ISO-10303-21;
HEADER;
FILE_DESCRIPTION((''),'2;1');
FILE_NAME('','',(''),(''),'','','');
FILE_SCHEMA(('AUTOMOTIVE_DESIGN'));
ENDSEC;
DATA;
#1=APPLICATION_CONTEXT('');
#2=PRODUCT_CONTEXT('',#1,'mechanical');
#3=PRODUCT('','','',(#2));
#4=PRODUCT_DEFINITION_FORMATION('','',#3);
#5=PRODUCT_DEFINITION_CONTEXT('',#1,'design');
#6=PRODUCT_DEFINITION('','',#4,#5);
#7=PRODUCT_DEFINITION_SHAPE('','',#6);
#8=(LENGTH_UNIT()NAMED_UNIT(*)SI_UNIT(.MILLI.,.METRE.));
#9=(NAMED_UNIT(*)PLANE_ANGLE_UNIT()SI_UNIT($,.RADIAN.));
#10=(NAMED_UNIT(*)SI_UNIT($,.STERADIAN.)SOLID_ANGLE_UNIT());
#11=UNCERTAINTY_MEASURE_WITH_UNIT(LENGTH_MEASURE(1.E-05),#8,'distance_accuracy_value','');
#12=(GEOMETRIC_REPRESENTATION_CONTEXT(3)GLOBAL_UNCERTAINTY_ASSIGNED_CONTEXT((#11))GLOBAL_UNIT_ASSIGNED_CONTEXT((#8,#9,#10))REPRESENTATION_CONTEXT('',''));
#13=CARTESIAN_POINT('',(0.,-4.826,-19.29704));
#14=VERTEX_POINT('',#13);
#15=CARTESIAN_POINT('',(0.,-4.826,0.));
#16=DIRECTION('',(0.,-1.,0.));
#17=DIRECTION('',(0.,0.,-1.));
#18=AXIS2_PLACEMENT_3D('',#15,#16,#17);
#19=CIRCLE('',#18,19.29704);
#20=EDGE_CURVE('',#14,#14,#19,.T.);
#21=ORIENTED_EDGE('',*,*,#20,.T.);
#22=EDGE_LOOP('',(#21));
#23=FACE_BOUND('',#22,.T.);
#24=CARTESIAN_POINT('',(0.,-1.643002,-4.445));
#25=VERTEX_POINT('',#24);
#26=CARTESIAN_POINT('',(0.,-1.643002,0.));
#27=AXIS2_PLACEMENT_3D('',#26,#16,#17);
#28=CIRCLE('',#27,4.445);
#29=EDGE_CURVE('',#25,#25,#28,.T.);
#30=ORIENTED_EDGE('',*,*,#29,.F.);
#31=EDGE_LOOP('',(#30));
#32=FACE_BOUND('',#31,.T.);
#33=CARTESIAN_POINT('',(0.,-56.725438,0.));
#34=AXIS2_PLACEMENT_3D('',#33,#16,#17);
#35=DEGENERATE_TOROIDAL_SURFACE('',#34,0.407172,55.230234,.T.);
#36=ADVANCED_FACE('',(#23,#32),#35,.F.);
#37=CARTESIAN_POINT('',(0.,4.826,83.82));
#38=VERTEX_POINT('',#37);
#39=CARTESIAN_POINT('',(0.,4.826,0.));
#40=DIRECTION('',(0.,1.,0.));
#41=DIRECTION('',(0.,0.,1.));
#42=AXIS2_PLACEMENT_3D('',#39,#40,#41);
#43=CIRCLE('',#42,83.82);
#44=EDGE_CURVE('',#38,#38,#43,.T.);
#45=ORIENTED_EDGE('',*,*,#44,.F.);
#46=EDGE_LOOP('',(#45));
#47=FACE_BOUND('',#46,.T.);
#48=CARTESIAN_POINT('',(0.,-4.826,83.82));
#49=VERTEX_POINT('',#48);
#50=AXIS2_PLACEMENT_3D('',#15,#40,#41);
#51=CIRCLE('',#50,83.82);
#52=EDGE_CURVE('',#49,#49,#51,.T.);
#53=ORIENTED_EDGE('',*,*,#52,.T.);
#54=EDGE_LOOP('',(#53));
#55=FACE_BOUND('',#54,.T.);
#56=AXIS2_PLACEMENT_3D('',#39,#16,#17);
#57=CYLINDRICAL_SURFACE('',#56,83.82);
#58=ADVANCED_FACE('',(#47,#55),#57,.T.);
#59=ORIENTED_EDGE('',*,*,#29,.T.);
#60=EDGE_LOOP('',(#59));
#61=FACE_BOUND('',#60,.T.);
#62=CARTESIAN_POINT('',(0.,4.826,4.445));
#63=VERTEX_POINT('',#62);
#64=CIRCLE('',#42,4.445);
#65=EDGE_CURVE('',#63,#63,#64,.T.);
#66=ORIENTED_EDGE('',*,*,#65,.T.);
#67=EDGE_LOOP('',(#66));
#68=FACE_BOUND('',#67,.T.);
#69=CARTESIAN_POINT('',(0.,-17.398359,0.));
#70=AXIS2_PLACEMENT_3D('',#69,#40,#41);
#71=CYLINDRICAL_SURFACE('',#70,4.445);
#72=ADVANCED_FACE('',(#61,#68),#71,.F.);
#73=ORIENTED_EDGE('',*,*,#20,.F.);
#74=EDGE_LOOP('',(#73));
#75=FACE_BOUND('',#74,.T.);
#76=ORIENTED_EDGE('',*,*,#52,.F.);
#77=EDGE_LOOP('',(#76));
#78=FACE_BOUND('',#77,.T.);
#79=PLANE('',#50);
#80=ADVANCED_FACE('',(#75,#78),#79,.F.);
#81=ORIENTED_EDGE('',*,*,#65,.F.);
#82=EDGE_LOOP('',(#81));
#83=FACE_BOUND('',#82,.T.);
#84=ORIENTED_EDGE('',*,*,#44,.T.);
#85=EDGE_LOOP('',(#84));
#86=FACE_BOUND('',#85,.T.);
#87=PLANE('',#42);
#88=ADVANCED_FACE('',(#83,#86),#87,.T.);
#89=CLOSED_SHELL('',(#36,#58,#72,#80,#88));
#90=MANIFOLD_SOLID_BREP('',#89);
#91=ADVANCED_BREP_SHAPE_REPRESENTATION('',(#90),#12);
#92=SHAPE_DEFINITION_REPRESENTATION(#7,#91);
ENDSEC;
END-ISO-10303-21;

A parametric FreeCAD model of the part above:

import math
import FreeCAD as App
import Part
import Sketcher
Q = App.Units.Quantity

doc = App.newDocument("Part")
body = doc.addObject("PartDesign::Body", "Body")

# Sketch on XZ plane
sketch1 = body.newObject("Sketcher::SketchObject", "Sketch")
sketch1.AttachmentSupport = (doc.getObject("XZ_Plane"), [""])
sketch1.MapMode = "FlatFace"
sketch1.addGeometry(Part.Circle(App.Vector(0, 0, 0), App.Vector(0, 0, 1), 83.82), False)
sketch1.addConstraint([
    Sketcher.Constraint("Coincident", 0, 3, -1, 1),
    Sketcher.Constraint("Diameter", 0, Q("6.6 in")),
])
pad1 = body.newObject("PartDesign::Pad", "Pad")
pad1.Profile = sketch1
pad1.Length = Q("0.38 in")
pad1.Midplane = True

# Sketch on XY plane
sketch2 = body.newObject("Sketcher::SketchObject", "Sketch001")
sketch2.AttachmentSupport = (doc.getObject("XY_Plane"), [""])
sketch2.MapMode = "FlatFace"
sketch2.addGeometry([
    Part.LineSegment(App.Vector(-19.29704, -4.826, 0), App.Vector(0, -4.826, 0)),
    Part.LineSegment(App.Vector(0, -4.826, 0), App.Vector(0, -1.495209, 0)),
    Part.LineSegment(App.Vector(0, -1.495209, 0), App.Vector(-0.381788, -1.495209, 0)),
    Part.ArcOfCircle(Part.Circle(App.Vector(-0.407172, -56.725438, 0), App.Vector(0, 0, 1), 55.230234), math.radians(89.973667), math.radians(110.000018)),
], False)
sketch2.addConstraint([
    Sketcher.Constraint("Coincident", 0, 2, 1, 1),
    Sketcher.Constraint("Coincident", 1, 2, 2, 1),
    Sketcher.Constraint("Coincident", 2, 2, 3, 1),
    Sketcher.Constraint("Coincident", 3, 2, 0, 1),
    Sketcher.Constraint("Horizontal", 0),
    Sketcher.Constraint("Vertical", 1),
    Sketcher.Constraint("Horizontal", 2),
    Sketcher.Constraint("PointOnObject", 0, 2, -2),
    Sketcher.Constraint("DistanceY", 0, 2, -1, 1, Q("0.19 in")),
    Sketcher.Constraint("Radius", 3, 55.230234),
    Sketcher.Constraint("DistanceX", 0, 1, 0, 2, 19.29704),
    Sketcher.Constraint("DistanceY", 1, 1, 1, 2, 3.330791),
    Sketcher.Constraint("DistanceX", 2, 2, 2, 1, 0.381788),
])
groove = body.newObject("PartDesign::Groove", "Groove")
groove.Profile = sketch2
groove.ReferenceAxis = (sketch2, ["V_Axis"])
groove.Angle = 360

# Sketch on XZ plane
sketch3 = body.newObject("Sketcher::SketchObject", "Sketch002")
sketch3.AttachmentSupport = (doc.getObject("XZ_Plane"), [""])
sketch3.MapMode = "FlatFace"
sketch3.AttachmentOffset = App.Placement(App.Vector(0, 0, -0.19 * 25.4), App.Rotation())
sketch3.addGeometry(Part.Circle(App.Vector(0, 0, 0), App.Vector(0, 0, 1), 4.445), False)
sketch3.addConstraint([
    Sketcher.Constraint("Coincident", 0, 3, -1, 1),
    Sketcher.Constraint("Diameter", 0, Q("0.35 in")),
])
pocket1 = body.newObject("PartDesign::Pocket", "Pocket")
pocket1.Profile = sketch3
pocket1.Length = Q("0.38 in")
pocket1.Reversed = True

doc.recompute()
